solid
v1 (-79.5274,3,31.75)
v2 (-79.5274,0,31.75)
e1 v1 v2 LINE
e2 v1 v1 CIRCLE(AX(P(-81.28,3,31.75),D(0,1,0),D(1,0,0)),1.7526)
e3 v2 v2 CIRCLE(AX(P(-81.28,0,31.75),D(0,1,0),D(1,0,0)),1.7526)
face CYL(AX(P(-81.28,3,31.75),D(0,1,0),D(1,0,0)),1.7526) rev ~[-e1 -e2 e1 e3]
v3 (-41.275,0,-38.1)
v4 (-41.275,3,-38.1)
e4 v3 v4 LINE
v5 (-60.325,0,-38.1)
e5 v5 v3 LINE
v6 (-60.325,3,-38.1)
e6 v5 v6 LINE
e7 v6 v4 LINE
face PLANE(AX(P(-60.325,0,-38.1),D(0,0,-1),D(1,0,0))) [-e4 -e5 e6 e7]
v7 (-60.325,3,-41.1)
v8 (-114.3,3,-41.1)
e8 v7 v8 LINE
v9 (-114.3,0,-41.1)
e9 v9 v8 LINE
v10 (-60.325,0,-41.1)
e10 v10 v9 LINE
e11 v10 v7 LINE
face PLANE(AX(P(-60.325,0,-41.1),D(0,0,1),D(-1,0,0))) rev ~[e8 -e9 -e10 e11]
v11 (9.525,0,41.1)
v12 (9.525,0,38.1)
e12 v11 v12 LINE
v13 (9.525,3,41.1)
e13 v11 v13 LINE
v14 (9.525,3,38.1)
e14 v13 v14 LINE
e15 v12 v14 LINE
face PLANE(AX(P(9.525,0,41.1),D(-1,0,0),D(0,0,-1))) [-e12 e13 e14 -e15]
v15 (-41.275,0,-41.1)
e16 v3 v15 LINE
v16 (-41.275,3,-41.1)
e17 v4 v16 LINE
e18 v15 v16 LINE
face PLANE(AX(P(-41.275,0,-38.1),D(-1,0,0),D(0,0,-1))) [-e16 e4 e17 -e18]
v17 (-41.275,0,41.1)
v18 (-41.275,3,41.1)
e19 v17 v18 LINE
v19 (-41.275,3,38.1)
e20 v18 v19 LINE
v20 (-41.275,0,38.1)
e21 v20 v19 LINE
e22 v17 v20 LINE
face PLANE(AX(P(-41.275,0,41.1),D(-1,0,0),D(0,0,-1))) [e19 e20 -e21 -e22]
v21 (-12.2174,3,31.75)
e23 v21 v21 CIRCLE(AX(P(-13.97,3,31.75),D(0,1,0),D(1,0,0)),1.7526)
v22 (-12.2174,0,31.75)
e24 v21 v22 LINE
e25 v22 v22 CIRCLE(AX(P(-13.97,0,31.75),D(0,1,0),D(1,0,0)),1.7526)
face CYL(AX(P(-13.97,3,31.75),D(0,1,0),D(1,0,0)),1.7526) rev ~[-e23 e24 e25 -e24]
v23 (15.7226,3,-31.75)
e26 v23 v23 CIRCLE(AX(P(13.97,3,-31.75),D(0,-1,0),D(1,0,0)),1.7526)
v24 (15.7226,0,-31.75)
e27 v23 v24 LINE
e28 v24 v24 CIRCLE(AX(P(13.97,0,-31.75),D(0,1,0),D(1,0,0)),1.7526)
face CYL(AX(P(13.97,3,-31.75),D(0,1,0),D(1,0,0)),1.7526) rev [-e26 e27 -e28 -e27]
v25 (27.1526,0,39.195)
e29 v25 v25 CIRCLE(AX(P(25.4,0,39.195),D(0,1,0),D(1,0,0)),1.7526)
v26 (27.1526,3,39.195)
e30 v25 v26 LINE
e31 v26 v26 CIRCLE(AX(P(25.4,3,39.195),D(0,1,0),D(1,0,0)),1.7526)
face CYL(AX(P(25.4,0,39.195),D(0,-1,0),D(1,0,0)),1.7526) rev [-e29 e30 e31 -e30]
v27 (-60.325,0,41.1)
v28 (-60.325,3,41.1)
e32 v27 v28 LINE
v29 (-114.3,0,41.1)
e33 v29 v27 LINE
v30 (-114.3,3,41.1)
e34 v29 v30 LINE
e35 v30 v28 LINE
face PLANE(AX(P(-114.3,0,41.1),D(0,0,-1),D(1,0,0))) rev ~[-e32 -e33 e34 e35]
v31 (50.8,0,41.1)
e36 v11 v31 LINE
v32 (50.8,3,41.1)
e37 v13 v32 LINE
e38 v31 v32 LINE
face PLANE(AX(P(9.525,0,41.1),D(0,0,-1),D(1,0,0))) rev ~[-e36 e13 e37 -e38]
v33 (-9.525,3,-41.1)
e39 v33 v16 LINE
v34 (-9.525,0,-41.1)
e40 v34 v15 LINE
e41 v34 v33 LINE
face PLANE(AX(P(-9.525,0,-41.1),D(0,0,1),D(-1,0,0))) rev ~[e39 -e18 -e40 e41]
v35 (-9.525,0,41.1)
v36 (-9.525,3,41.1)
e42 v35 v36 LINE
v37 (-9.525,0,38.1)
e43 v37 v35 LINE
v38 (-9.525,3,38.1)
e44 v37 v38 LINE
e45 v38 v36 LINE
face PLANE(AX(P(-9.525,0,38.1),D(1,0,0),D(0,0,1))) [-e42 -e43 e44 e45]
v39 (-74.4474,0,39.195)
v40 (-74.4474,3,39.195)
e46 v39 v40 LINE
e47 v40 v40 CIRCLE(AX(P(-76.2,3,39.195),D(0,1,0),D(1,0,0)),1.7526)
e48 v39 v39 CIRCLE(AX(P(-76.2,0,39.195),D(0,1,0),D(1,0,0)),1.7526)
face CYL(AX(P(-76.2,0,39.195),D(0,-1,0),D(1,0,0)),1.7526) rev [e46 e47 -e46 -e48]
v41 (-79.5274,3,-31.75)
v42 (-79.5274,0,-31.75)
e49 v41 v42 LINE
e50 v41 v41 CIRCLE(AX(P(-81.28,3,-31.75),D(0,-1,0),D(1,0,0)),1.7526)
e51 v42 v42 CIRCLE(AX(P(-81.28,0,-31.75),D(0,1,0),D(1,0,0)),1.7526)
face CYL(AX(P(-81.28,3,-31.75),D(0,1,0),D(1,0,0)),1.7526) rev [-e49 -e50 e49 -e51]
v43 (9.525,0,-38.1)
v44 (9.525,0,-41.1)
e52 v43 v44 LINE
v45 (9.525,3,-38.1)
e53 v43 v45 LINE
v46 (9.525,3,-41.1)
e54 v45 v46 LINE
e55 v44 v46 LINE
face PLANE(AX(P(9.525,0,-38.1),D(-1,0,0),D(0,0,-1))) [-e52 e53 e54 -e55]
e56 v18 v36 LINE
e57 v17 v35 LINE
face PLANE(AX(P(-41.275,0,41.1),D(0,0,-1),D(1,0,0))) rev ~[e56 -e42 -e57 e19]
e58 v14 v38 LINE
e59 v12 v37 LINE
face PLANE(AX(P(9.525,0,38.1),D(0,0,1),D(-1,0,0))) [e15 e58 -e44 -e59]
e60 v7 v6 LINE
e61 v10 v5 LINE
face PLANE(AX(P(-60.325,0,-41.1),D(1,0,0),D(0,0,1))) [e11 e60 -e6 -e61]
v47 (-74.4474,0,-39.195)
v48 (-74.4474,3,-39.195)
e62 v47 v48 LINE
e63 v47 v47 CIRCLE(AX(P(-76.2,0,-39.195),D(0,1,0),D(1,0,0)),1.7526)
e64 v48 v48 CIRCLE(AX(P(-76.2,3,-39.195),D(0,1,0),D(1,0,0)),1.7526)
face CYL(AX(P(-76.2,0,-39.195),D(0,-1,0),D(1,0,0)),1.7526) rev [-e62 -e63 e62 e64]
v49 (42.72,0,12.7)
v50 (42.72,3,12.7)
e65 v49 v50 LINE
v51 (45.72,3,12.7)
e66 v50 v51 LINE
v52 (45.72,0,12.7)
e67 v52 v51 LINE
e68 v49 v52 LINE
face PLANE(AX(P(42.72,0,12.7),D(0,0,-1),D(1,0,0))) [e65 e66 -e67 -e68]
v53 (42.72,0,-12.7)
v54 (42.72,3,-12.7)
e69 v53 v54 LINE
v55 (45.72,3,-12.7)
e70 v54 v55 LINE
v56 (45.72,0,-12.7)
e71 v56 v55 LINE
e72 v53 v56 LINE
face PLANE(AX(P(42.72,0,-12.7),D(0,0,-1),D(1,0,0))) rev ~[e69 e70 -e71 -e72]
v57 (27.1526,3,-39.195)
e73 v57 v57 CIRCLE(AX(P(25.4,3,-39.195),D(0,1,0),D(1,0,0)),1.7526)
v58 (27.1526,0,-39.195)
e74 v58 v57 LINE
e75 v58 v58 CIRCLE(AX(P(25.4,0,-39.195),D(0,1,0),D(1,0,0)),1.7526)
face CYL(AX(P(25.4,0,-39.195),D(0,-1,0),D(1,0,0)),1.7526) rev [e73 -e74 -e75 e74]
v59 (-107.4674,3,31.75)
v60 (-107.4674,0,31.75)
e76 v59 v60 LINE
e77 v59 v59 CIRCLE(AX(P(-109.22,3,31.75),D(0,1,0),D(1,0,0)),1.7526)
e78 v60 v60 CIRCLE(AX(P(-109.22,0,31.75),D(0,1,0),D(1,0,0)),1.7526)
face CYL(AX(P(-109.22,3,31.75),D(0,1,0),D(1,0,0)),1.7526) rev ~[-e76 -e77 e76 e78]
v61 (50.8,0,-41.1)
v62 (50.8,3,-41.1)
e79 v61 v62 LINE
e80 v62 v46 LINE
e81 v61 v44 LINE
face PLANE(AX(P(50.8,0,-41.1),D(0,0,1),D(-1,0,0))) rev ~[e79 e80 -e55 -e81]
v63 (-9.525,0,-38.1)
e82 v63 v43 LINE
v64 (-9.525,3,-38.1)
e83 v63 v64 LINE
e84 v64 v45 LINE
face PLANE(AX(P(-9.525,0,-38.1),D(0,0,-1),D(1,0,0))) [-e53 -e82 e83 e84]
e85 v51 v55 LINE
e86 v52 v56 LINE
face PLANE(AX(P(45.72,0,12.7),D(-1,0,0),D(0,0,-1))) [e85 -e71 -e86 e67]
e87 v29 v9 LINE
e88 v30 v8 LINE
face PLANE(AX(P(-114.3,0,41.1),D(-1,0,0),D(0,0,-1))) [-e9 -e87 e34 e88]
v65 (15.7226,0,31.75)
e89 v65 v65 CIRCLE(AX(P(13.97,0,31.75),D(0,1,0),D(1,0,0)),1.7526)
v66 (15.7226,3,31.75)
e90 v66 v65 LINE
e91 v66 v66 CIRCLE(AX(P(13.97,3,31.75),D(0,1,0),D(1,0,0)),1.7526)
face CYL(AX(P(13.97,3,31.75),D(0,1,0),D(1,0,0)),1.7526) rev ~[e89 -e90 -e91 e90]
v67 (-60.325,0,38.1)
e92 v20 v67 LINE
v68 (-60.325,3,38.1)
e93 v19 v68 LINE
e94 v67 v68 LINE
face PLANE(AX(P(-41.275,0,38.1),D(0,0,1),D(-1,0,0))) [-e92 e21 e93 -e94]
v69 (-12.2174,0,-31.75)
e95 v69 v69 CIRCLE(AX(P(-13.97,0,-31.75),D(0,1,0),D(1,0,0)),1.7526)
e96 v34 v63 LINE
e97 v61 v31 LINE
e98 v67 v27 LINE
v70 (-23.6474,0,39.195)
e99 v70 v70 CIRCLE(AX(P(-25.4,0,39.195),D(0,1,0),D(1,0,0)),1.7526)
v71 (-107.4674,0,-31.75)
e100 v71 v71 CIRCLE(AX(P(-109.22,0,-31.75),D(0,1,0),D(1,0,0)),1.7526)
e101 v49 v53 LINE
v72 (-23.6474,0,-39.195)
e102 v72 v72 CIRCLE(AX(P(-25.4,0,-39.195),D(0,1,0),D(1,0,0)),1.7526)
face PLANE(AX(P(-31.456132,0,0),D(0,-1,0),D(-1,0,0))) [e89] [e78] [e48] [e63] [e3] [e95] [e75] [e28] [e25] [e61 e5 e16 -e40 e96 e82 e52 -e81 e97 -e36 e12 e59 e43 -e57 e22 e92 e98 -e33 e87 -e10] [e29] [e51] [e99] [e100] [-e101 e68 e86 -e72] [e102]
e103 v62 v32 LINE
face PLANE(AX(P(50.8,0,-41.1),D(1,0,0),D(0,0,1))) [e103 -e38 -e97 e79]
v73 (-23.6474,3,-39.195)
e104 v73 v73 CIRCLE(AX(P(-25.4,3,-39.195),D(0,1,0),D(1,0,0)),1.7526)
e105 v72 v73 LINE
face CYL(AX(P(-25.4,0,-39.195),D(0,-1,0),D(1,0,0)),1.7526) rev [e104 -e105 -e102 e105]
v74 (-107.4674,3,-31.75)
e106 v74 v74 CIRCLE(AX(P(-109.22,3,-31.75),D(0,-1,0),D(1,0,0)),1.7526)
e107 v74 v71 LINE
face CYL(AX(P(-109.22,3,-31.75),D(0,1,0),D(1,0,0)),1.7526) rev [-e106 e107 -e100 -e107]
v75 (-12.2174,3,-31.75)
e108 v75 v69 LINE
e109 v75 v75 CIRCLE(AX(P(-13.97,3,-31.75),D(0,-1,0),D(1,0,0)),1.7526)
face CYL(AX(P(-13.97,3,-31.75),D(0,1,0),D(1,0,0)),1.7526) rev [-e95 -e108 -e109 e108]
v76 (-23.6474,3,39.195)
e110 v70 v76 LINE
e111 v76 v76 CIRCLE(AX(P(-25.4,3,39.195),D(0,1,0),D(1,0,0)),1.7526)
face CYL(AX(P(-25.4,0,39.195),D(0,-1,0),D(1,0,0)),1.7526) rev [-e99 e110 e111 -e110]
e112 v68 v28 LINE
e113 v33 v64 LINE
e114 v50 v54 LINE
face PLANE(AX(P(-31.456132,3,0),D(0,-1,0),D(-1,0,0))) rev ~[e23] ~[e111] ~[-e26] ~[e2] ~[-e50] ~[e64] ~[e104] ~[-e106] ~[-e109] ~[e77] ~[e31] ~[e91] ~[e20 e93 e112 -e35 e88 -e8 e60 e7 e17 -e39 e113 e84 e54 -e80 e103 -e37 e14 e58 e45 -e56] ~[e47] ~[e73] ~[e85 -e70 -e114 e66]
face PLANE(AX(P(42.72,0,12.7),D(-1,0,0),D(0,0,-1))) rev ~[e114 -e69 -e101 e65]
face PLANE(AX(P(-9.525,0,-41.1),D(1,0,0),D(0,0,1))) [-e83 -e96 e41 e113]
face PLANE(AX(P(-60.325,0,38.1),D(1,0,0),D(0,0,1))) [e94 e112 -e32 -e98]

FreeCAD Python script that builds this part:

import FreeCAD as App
import Part
import Sketcher
Q = App.Units.Quantity


def add_polygon(sketch, points):
    """Adds a closed chain of lines whose ends are joined by coincident constraints."""
    first, n = sketch.GeometryCount, len(points)
    for a, b in zip(points, points[1:] + points[:1]):
        sketch.addGeometry(Part.LineSegment(App.Vector(*a, 0), App.Vector(*b, 0)), False)
    for i in range(n):
        sketch.addConstraint(Sketcher.Constraint("Coincident", first + i, 2, first + (i + 1) % n, 1))

doc = App.newDocument("Part")
body = doc.addObject("PartDesign::Body", "Body")

# Sketch on XZ plane
sketch1 = body.newObject("Sketcher::SketchObject", "Sketch")
sketch1.AttachmentSupport = (doc.getObject("XZ_Plane"), [""])
sketch1.MapMode = "FlatFace"
add_polygon(sketch1, [(-60.3, -41.1), (-114.3, -41.1), (-114.3, 41.1), (-60.3, 41.1), (-60.3, 38.1), (-41.3, 38.1), (-41.3, 41.1), (-9.5, 41.1), (-9.5, 38.1), (9.5, 38.1), (9.5, 41.1), (50.8, 41.1), (50.8, -41.1), (9.5, -41.1), (9.5, -38.1), (-9.5, -38.1), (-9.5, -41.1), (-41.3, -41.1), (-41.3, -38.1), (-60.3, -38.1)])  # lines 0-19
sketch1.addGeometry(Part.Circle(App.Vector(25.4, 39.2, 0), App.Vector(0, 0, 1), 1.8), False)  # 20
sketch1.addGeometry(Part.Circle(App.Vector(-25.4, 39.2, 0), App.Vector(0, 0, 1), 1.8), False)  # 21
sketch1.addGeometry(Part.Circle(App.Vector(-76.2, 39.2, 0), App.Vector(0, 0, 1), 1.8), False)  # 22
add_polygon(sketch1, [(42.7, 12.7), (42.7, -12.7), (45.7, -12.7), (45.7, 12.7)])  # lines 23-26
sketch1.addGeometry(Part.Circle(App.Vector(25.4, -39.2, 0), App.Vector(0, 0, 1), 1.8), False)  # 27
sketch1.addGeometry(Part.Circle(App.Vector(-25.4, -39.2, 0), App.Vector(0, 0, 1), 1.8), False)  # 28
sketch1.addGeometry(Part.Circle(App.Vector(-76.2, -39.2, 0), App.Vector(0, 0, 1), 1.8), False)  # 29
sketch1.addConstraint([
    Sketcher.Constraint("Horizontal", 0),
    Sketcher.Constraint("Vertical", 1),
    Sketcher.Constraint("Horizontal", 2),
    Sketcher.Constraint("Vertical", 3),
    Sketcher.Constraint("Horizontal", 4),
    Sketcher.Constraint("Vertical", 5),
    Sketcher.Constraint("Horizontal", 6),
    Sketcher.Constraint("Vertical", 7),
    Sketcher.Constraint("Horizontal", 8),
    Sketcher.Constraint("Vertical", 9),
    Sketcher.Constraint("Horizontal", 10),
    Sketcher.Constraint("Vertical", 11),
    Sketcher.Constraint("Horizontal", 12),
    Sketcher.Constraint("Vertical", 13),
    Sketcher.Constraint("Horizontal", 14),
    Sketcher.Constraint("Vertical", 15),
    Sketcher.Constraint("Horizontal", 16),
    Sketcher.Constraint("Vertical", 17),
    Sketcher.Constraint("Horizontal", 18),
    Sketcher.Constraint("Vertical", 19),
    Sketcher.Constraint("Vertical", 23),
    Sketcher.Constraint("Horizontal", 24),
    Sketcher.Constraint("Vertical", 25),
    Sketcher.Constraint("Horizontal", 26),
    Sketcher.Constraint("Equal", 20, 21),
    Sketcher.Constraint("Equal", 21, 22),
    Sketcher.Constraint("Equal", 22, 27),
    Sketcher.Constraint("Equal", 27, 28),
    Sketcher.Constraint("Equal", 28, 29),
    Sketcher.Constraint("Symmetric", 21, 3, 27, 3, -1, 1),
    Sketcher.Constraint("Symmetric", 20, 3, 28, 3, -1, 1),
    Sketcher.Constraint("Symmetric", 6, 2, 12, 2, -1, 1),
    Sketcher.Constraint("Symmetric", 8, 2, 14, 2, -1, 1),
    Sketcher.Constraint("Symmetric", 20, 3, 21, 3, -2),
    Sketcher.Constraint("Symmetric", 6, 2, 9, 2, -2),
    Sketcher.Constraint("Symmetric", 22, 3, 29, 3, -1),
    Sketcher.Constraint("Symmetric", 5, 2, 16, 2, -1),
    Sketcher.Constraint("Symmetric", 3, 2, 18, 2, -1),
    Sketcher.Constraint("Horizontal", 21, 3, 22, 3),
    Sketcher.Constraint("Horizontal", 2, 2, 5, 2),
    Sketcher.Constraint("Horizontal", 4, 2, 7, 2),
    Sketcher.Constraint("Horizontal", 0, 2, 11, 2),
    Sketcher.Constraint("Equal", 4, 8),
    Sketcher.Constraint("Equal", 26, 3),
    Sketcher.Constraint("DistanceY", 23, 2, 23, 1, Q("1 in")),
    Sketcher.Constraint("Diameter", 20, Q("0.138 in")),
    Sketcher.Constraint("DistanceX", -1, 1, 20, 3, Q("1 in")),
    Sketcher.Constraint("DistanceX", 22, 3, -1, 1, Q("3 in")),
    Sketcher.Constraint("DistanceX", -1, 1, 10, 2, Q("2 in")),
    Sketcher.Constraint("DistanceX", 2, 2, 6, 2, Q("2 in")),
    Sketcher.Constraint("DistanceY", 13, 2, 8, 2, Q("3 in")),
    Sketcher.Constraint("DistanceY", 13, 2, 23, 2, Q("1 in")),
    Sketcher.Constraint("DistanceX", 4, 1, 4, 2, Q("0.75 in")),
    Sketcher.Constraint("DistanceX", 0, 2, -1, 1, Q("4.5 in")),
    Sketcher.Constraint("DistanceX", -1, 1, 24, 2, Q("1.8 in")),
    Sketcher.Constraint("DistanceY", 0, 2, 29, 3, Q("0.075 in")),
    Sketcher.Constraint("DistanceX", 24, 1, 24, 2, 3.0),
])
pad1 = body.newObject("PartDesign::Pad", "Pad")
pad1.Profile = sketch1
pad1.Length = 3
pad1.Reversed = True

# Sketch on XZ plane
sketch2 = body.newObject("Sketcher::SketchObject", "Sketch001")
sketch2.AttachmentSupport = (doc.getObject("XZ_Plane"), [""])
sketch2.MapMode = "FlatFace"
sketch2.AttachmentOffset = App.Placement(App.Vector(0, 0, -3), App.Rotation())
sketch2.addGeometry([
    Part.Circle(App.Vector(-109.2, 31.8, 0), App.Vector(0, 0, 1), 1.8),
    Part.Circle(App.Vector(-81.3, 31.8, 0), App.Vector(0, 0, 1), 1.8),
    Part.Circle(App.Vector(14, 31.8, 0), App.Vector(0, 0, 1), 1.8),
    Part.Circle(App.Vector(-14, 31.8, 0), App.Vector(0, 0, 1), 1.8),
], False)
sketch2.addConstraint([
    Sketcher.Constraint("Equal", 0, 1),
    Sketcher.Constraint("Equal", 1, 2),
    Sketcher.Constraint("Equal", 2, 3),
    Sketcher.Constraint("Symmetric", 2, 3, 3, 3, -2),
    Sketcher.Constraint("Horizontal", 0, 3, 1, 3),
    Sketcher.Constraint("Horizontal", 1, 3, 2, 3),
    Sketcher.Constraint("Diameter", 0, Q("0.138 in")),
    Sketcher.Constraint("DistanceX", 0, 3, -1, 1, Q("4.3 in")),
    Sketcher.Constraint("DistanceX", 1, 3, -1, 1, Q("3.2 in")),
    Sketcher.Constraint("DistanceX", 3, 3, 2, 3, Q("1.1 in")),
    Sketcher.Constraint("DistanceY", -1, 1, 0, 3, Q("1.25 in")),
])
pocket1 = body.newObject("PartDesign::Pocket", "Pocket")
pocket1.Profile = sketch2
pocket1.Type = "ThroughAll"
pocket1.Reversed = True
doc.recompute()

mirrored = body.newObject("PartDesign::Mirrored", "Mirrored")
mirrored.Originals = [pocket1]
mirrored.MirrorPlane = (doc.getObject("XY_Plane"), [""])
body.Tip = mirrored

doc.recompute()
